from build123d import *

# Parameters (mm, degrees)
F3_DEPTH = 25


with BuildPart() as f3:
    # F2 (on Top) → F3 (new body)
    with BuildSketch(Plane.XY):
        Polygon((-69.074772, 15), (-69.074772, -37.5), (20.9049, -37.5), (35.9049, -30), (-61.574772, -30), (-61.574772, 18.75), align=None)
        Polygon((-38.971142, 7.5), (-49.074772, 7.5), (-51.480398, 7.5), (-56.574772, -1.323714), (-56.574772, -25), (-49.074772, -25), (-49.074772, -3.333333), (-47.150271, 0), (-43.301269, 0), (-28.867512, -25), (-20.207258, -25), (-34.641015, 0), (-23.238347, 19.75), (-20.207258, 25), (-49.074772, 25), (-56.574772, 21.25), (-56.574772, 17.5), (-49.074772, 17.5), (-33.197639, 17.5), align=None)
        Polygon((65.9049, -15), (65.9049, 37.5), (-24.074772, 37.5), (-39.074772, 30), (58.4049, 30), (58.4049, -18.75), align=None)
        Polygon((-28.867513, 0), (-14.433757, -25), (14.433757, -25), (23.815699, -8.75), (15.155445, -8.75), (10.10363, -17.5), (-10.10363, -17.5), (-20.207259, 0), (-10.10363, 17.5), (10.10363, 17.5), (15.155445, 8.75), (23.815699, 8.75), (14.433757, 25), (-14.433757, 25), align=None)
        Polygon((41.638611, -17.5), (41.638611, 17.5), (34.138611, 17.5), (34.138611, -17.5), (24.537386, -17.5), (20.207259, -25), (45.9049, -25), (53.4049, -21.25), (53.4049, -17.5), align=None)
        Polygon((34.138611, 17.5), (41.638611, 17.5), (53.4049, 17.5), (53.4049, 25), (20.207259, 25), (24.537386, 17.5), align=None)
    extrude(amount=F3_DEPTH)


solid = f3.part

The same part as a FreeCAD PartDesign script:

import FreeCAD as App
import Part
import Sketcher

V = App.Vector
Q = App.Units.Quantity

doc = App.newDocument("Part")
body = doc.addObject("PartDesign::Body", "Body")
body.AllowCompound = True

# Sketch on XY plane
sketch1 = body.newObject("Sketcher::SketchObject", "Sketch")
sketch1.AttachmentSupport = (doc.getObject("XY_Plane"), [""])
sketch1.MapMode = "FlatFace"
sketch1.addGeometry(Part.LineSegment(V(-69.1, 15, 0), V(-69.1, -37.5, 0)), False)
sketch1.addGeometry(Part.LineSegment(V(-69.1, -37.5, 0), V(20.9, -37.5, 0)), False)
sketch1.addGeometry(Part.LineSegment(V(20.9, -37.5, 0), V(35.9, -30, 0)), False)
sketch1.addGeometry(Part.LineSegment(V(35.9, -30, 0), V(-61.6, -30, 0)), False)
sketch1.addGeometry(Part.LineSegment(V(-61.6, -30, 0), V(-61.6, 18.8, 0)), False)
sketch1.addGeometry(Part.LineSegment(V(-61.6, 18.8, 0), V(-69.1, 15, 0)), False)
sketch1.addGeometry(Part.LineSegment(V(-39, 7.5, 0), V(-51.5, 7.5, 0)), False)
sketch1.addGeometry(Part.LineSegment(V(-51.5, 7.5, 0), V(-56.6, -1.3, 0)), False)
sketch1.addGeometry(Part.LineSegment(V(-56.6, -1.3, 0), V(-56.6, -25, 0)), False)
sketch1.addGeometry(Part.LineSegment(V(-56.6, -25, 0), V(-49.1, -25, 0)), False)
sketch1.addGeometry(Part.LineSegment(V(-49.1, -25, 0), V(-49.1, -3.3, 0)), False)
sketch1.addGeometry(Part.LineSegment(V(-49.1, -3.3, 0), V(-47.2, 0, 0)), False)
sketch1.addGeometry(Part.LineSegment(V(-47.2, 0, 0), V(-43.3, 0, 0)), False)
sketch1.addGeometry(Part.LineSegment(V(-43.3, 0, 0), V(-28.9, -25, 0)), False)
sketch1.addGeometry(Part.LineSegment(V(-28.9, -25, 0), V(-20.2, -25, 0)), False)
sketch1.addGeometry(Part.LineSegment(V(-20.2, -25, 0), V(-34.6, 0, 0)), False)
sketch1.addGeometry(Part.LineSegment(V(-34.6, 0, 0), V(-23.2, 19.8, 0)), False)
sketch1.addGeometry(Part.LineSegment(V(-23.2, 19.8, 0), V(-20.2, 25, 0)), False)
sketch1.addGeometry(Part.LineSegment(V(-20.2, 25, 0), V(-49.1, 25, 0)), False)
sketch1.addGeometry(Part.LineSegment(V(-49.1, 25, 0), V(-56.6, 21.2, 0)), False)
sketch1.addGeometry(Part.LineSegment(V(-56.6, 21.2, 0), V(-56.6, 17.5, 0)), False)
sketch1.addGeometry(Part.LineSegment(V(-56.6, 17.5, 0), V(-33.2, 17.5, 0)), False)
sketch1.addGeometry(Part.LineSegment(V(-33.2, 17.5, 0), V(-39, 7.5, 0)), False)
sketch1.addGeometry(Part.LineSegment(V(65.9, -15, 0), V(65.9, 37.5, 0)), False)
sketch1.addGeometry(Part.LineSegment(V(65.9, 37.5, 0), V(-24.1, 37.5, 0)), False)
sketch1.addGeometry(Part.LineSegment(V(-24.1, 37.5, 0), V(-39.1, 30, 0)), False)
sketch1.addGeometry(Part.LineSegment(V(-39.1, 30, 0), V(58.4, 30, 0)), False)
sketch1.addGeometry(Part.LineSegment(V(58.4, 30, 0), V(58.4, -18.8, 0)), False)
sketch1.addGeometry(Part.LineSegment(V(58.4, -18.8, 0), V(65.9, -15, 0)), False)
sketch1.addGeometry(Part.LineSegment(V(-28.9, 0, 0), V(-14.4, -25, 0)), False)
sketch1.addGeometry(Part.LineSegment(V(-14.4, -25, 0), V(14.4, -25, 0)), False)
sketch1.addGeometry(Part.LineSegment(V(14.4, -25, 0), V(23.8, -8.8, 0)), False)
sketch1.addGeometry(Part.LineSegment(V(23.8, -8.8, 0), V(15.2, -8.8, 0)), False)
sketch1.addGeometry(Part.LineSegment(V(15.2, -8.8, 0), V(10.1, -17.5, 0)), False)
sketch1.addGeometry(Part.LineSegment(V(10.1, -17.5, 0), V(-10.1, -17.5, 0)), False)
sketch1.addGeometry(Part.LineSegment(V(-10.1, -17.5, 0), V(-20.2, 0, 0)), False)
sketch1.addGeometry(Part.LineSegment(V(-20.2, 0, 0), V(-10.1, 17.5, 0)), False)
sketch1.addGeometry(Part.LineSegment(V(-10.1, 17.5, 0), V(10.1, 17.5, 0)), False)
sketch1.addGeometry(Part.LineSegment(V(10.1, 17.5, 0), V(15.2, 8.8, 0)), False)
sketch1.addGeometry(Part.LineSegment(V(15.2, 8.8, 0), V(23.8, 8.8, 0)), False)
sketch1.addGeometry(Part.LineSegment(V(23.8, 8.8, 0), V(14.4, 25, 0)), False)
sketch1.addGeometry(Part.LineSegment(V(14.4, 25, 0), V(-14.4, 25, 0)), False)
sketch1.addGeometry(Part.LineSegment(V(-14.4, 25, 0), V(-28.9, 0, 0)), False)
sketch1.addGeometry(Part.LineSegment(V(41.6, -17.5, 0), V(41.6, 17.5, 0)), False)
sketch1.addGeometry(Part.LineSegment(V(41.6, 17.5, 0), V(53.4, 17.5, 0)), False)
sketch1.addGeometry(Part.LineSegment(V(53.4, 17.5, 0), V(53.4, 25, 0)), False)
sketch1.addGeometry(Part.LineSegment(V(53.4, 25, 0), V(20.2, 25, 0)), False)
sketch1.addGeometry(Part.LineSegment(V(20.2, 25, 0), V(24.5, 17.5, 0)), False)
sketch1.addGeometry(Part.LineSegment(V(24.5, 17.5, 0), V(34.1, 17.5, 0)), False)
sketch1.addGeometry(Part.LineSegment(V(34.1, 17.5, 0), V(34.1, -17.5, 0)), False)
sketch1.addGeometry(Part.LineSegment(V(34.1, -17.5, 0), V(24.5, -17.5, 0)), False)
sketch1.addGeometry(Part.LineSegment(V(24.5, -17.5, 0), V(20.2, -25, 0)), False)
sketch1.addGeometry(Part.LineSegment(V(20.2, -25, 0), V(45.9, -25, 0)), False)
sketch1.addGeometry(Part.LineSegment(V(45.9, -25, 0), V(53.4, -21.2, 0)), False)
sketch1.addGeometry(Part.LineSegment(V(53.4, -21.2, 0), V(53.4, -17.5, 0)), False)
sketch1.addGeometry(Part.LineSegment(V(53.4, -17.5, 0), V(41.6, -17.5, 0)), False)
sketch1.addConstraint(Sketcher.Constraint("Coincident", 0, 2, 1, 1))
sketch1.addConstraint(Sketcher.Constraint("Coincident", 1, 2, 2, 1))
sketch1.addConstraint(Sketcher.Constraint("Coincident", 2, 2, 3, 1))
sketch1.addConstraint(Sketcher.Constraint("Coincident", 3, 2, 4, 1))
sketch1.addConstraint(Sketcher.Constraint("Coincident", 4, 2, 5, 1))
sketch1.addConstraint(Sketcher.Constraint("Coincident", 5, 2, 0, 1))
sketch1.addConstraint(Sketcher.Constraint("Coincident", 6, 2, 7, 1))
sketch1.addConstraint(Sketcher.Constraint("Coincident", 7, 2, 8, 1))
sketch1.addConstraint(Sketcher.Constraint("Coincident", 8, 2, 9, 1))
sketch1.addConstraint(Sketcher.Constraint("Coincident", 9, 2, 10, 1))
sketch1.addConstraint(Sketcher.Constraint("Coincident", 10, 2, 11, 1))
sketch1.addConstraint(Sketcher.Constraint("Coincident", 11, 2, 12, 1))
sketch1.addConstraint(Sketcher.Constraint("Coincident", 12, 2, 13, 1))
sketch1.addConstraint(Sketcher.Constraint("Coincident", 13, 2, 14, 1))
sketch1.addConstraint(Sketcher.Constraint("Coincident", 14, 2, 15, 1))
sketch1.addConstraint(Sketcher.Constraint("Coincident", 15, 2, 16, 1))
sketch1.addConstraint(Sketcher.Constraint("Coincident", 16, 2, 17, 1))
sketch1.addConstraint(Sketcher.Constraint("Coincident", 17, 2, 18, 1))
sketch1.addConstraint(Sketcher.Constraint("Coincident", 18, 2, 19, 1))
sketch1.addConstraint(Sketcher.Constraint("Coincident", 19, 2, 20, 1))
sketch1.addConstraint(Sketcher.Constraint("Coincident", 20, 2, 21, 1))
sketch1.addConstraint(Sketcher.Constraint("Coincident", 21, 2, 22, 1))
sketch1.addConstraint(Sketcher.Constraint("Coincident", 22, 2, 6, 1))
sketch1.addConstraint(Sketcher.Constraint("Coincident", 23, 2, 24, 1))
sketch1.addConstraint(Sketcher.Constraint("Coincident", 24, 2, 25, 1))
sketch1.addConstraint(Sketcher.Constraint("Coincident", 25, 2, 26, 1))
sketch1.addConstraint(Sketcher.Constraint("Coincident", 26, 2, 27, 1))
sketch1.addConstraint(Sketcher.Constraint("Coincident", 27, 2, 28, 1))
sketch1.addConstraint(Sketcher.Constraint("Coincident", 28, 2, 23, 1))
sketch1.addConstraint(Sketcher.Constraint("Coincident", 29, 2, 30, 1))
sketch1.addConstraint(Sketcher.Constraint("Coincident", 30, 2, 31, 1))
sketch1.addConstraint(Sketcher.Constraint("Coincident", 31, 2, 32, 1))
sketch1.addConstraint(Sketcher.Constraint("Coincident", 32, 2, 33, 1))
sketch1.addConstraint(Sketcher.Constraint("Coincident", 33, 2, 34, 1))
sketch1.addConstraint(Sketcher.Constraint("Coincident", 34, 2, 35, 1))
sketch1.addConstraint(Sketcher.Constraint("Coincident", 35, 2, 36, 1))
sketch1.addConstraint(Sketcher.Constraint("Coincident", 36, 2, 37, 1))
sketch1.addConstraint(Sketcher.Constraint("Coincident", 37, 2, 38, 1))
sketch1.addConstraint(Sketcher.Constraint("Coincident", 38, 2, 39, 1))
sketch1.addConstraint(Sketcher.Constraint("Coincident", 39, 2, 40, 1))
sketch1.addConstraint(Sketcher.Constraint("Coincident", 40, 2, 41, 1))
sketch1.addConstraint(Sketcher.Constraint("Coincident", 41, 2, 42, 1))
sketch1.addConstraint(Sketcher.Constraint("Coincident", 42, 2, 29, 1))
sketch1.addConstraint(Sketcher.Constraint("Coincident", 43, 2, 44, 1))
sketch1.addConstraint(Sketcher.Constraint("Coincident", 44, 2, 45, 1))
sketch1.addConstraint(Sketcher.Constraint("Coincident", 45, 2, 46, 1))
sketch1.addConstraint(Sketcher.Constraint("Coincident", 46, 2, 47, 1))
sketch1.addConstraint(Sketcher.Constraint("Coincident", 47, 2, 48, 1))
sketch1.addConstraint(Sketcher.Constraint("Coincident", 48, 2, 49, 1))
sketch1.addConstraint(Sketcher.Constraint("Coincident", 49, 2, 50, 1))
sketch1.addConstraint(Sketcher.Constraint("Coincident", 50, 2, 51, 1))
sketch1.addConstraint(Sketcher.Constraint("Coincident", 51, 2, 52, 1))
sketch1.addConstraint(Sketcher.Constraint("Coincident", 52, 2, 53, 1))
sketch1.addConstraint(Sketcher.Constraint("Coincident", 53, 2, 54, 1))
sketch1.addConstraint(Sketcher.Constraint("Coincident", 54, 2, 55, 1))
sketch1.addConstraint(Sketcher.Constraint("Coincident", 55, 2, 43, 1))
sketch1.addConstraint(Sketcher.Constraint("Vertical", 0))
sketch1.addConstraint(Sketcher.Constraint("Horizontal", 1))
sketch1.addConstraint(Sketcher.Constraint("Horizontal", 3))
sketch1.addConstraint(Sketcher.Constraint("Vertical", 4))
sketch1.addConstraint(Sketcher.Constraint("Horizontal", 6))
sketch1.addConstraint(Sketcher.Constraint("Vertical", 8))
sketch1.addConstraint(Sketcher.Constraint("Horizontal", 9))
sketch1.addConstraint(Sketcher.Constraint("Vertical", 10))
sketch1.addConstraint(Sketcher.Constraint("Horizontal", 12))
sketch1.addConstraint(Sketcher.Constraint("Horizontal", 14))
sketch1.addConstraint(Sketcher.Constraint("Horizontal", 18))
sketch1.addConstraint(Sketcher.Constraint("Vertical", 20))
sketch1.addConstraint(Sketcher.Constraint("Horizontal", 21))
sketch1.addConstraint(Sketcher.Constraint("Vertical", 23))
sketch1.addConstraint(Sketcher.Constraint("Horizontal", 24))
sketch1.addConstraint(Sketcher.Constraint("Horizontal", 26))
sketch1.addConstraint(Sketcher.Constraint("Vertical", 27))
sketch1.addConstraint(Sketcher.Constraint("Horizontal", 30))
sketch1.addConstraint(Sketcher.Constraint("Horizontal", 32))
sketch1.addConstraint(Sketcher.Constraint("Horizontal", 34))
sketch1.addConstraint(Sketcher.Constraint("Horizontal", 37))
sketch1.addConstraint(Sketcher.Constraint("Horizontal", 39))
sketch1.addConstraint(Sketcher.Constraint("Horizontal", 41))
sketch1.addConstraint(Sketcher.Constraint("Vertical", 43))
sketch1.addConstraint(Sketcher.Constraint("Horizontal", 44))
sketch1.addConstraint(Sketcher.Constraint("Vertical", 45))
sketch1.addConstraint(Sketcher.Constraint("Horizontal", 46))
sketch1.addConstraint(Sketcher.Constraint("Horizontal", 48))
sketch1.addConstraint(Sketcher.Constraint("Vertical", 49))
sketch1.addConstraint(Sketcher.Constraint("Horizontal", 50))
sketch1.addConstraint(Sketcher.Constraint("Horizontal", 52))
sketch1.addConstraint(Sketcher.Constraint("Vertical", 54))
sketch1.addConstraint(Sketcher.Constraint("Horizontal", 55))
sketch1.addConstraint(Sketcher.Constraint("Symmetric", 33, 2, 36, 2, -1, 1))
sketch1.addConstraint(Sketcher.Constraint("Symmetric", 29, 2, 40, 2, -1, 1))
sketch1.addConstraint(Sketcher.Constraint("Symmetric", 14, 2, 46, 2, -1, 1))
sketch1.addConstraint(Sketcher.Constraint("Symmetric", 17, 2, 51, 2, -1, 1))
sketch1.addConstraint(Sketcher.Constraint("Symmetric", 17, 2, 46, 2, -2))
sketch1.addConstraint(Sketcher.Constraint("Symmetric", 9, 2, 18, 2, -1))
sketch1.addConstraint(Sketcher.Constraint("Symmetric", 32, 2, 38, 2, -1))
sketch1.addConstraint(Sketcher.Constraint("Symmetric", 47, 2, 50, 2, -1))
sketch1.addConstraint(Sketcher.Constraint("Symmetric", 44, 2, 54, 2, -1))
sketch1.addConstraint(Sketcher.Constraint("PointOnObject", 11, 2, -1))
sketch1.addConstraint(Sketcher.Constraint("PointOnObject", 15, 2, -1))
sketch1.addConstraint(Sketcher.Constraint("PointOnObject", 35, 2, -1))
sketch1.addConstraint(Sketcher.Constraint("PointOnObject", 42, 2, -1))
sketch1.addConstraint(Sketcher.Constraint("Parallel", 2, 5))
sketch1.addConstraint(Sketcher.Constraint("Parallel", 7, 11))
sketch1.addConstraint(Sketcher.Constraint("Parallel", 13, 15))
sketch1.addConstraint(Sketcher.Constraint("Parallel", 11, 16))
sketch1.addConstraint(Sketcher.Constraint("Parallel", 16, 17))
sketch1.addConstraint(Sketcher.Constraint("Parallel", 5, 19))
sketch1.addConstraint(Sketcher.Constraint("Parallel", 17, 22))
sketch1.addConstraint(Sketcher.Constraint("Parallel", 19, 25))
sketch1.addConstraint(Sketcher.Constraint("Parallel", 25, 28))
sketch1.addConstraint(Sketcher.Constraint("Parallel", 15, 29))
sketch1.addConstraint(Sketcher.Constraint("Parallel", 22, 31))
sketch1.addConstraint(Sketcher.Constraint("Parallel", 31, 33))
sketch1.addConstraint(Sketcher.Constraint("Parallel", 29, 35))
sketch1.addConstraint(Sketcher.Constraint("Parallel", 33, 36))
sketch1.addConstraint(Sketcher.Constraint("Parallel", 35, 38))
sketch1.addConstraint(Sketcher.Constraint("Parallel", 38, 40))
sketch1.addConstraint(Sketcher.Constraint("Parallel", 36, 42))
sketch1.addConstraint(Sketcher.Constraint("Parallel", 40, 47))
sketch1.addConstraint(Sketcher.Constraint("Parallel", 28, 53))
sketch1.addConstraint(Sketcher.Constraint("Horizontal", 14, 2, 29, 2))
sketch1.addConstraint(Sketcher.Constraint("Horizontal", 21, 2, 36, 2))
sketch1.addConstraint(Sketcher.Constraint("Horizontal", 37, 2, 43, 2))
sketch1.addConstraint(Sketcher.Constraint("Horizontal", 44, 2, 47, 2))
sketch1.addConstraint(Sketcher.Constraint("Vertical", 8, 2, 19, 2))
sketch1.addConstraint(Sketcher.Constraint("Vertical", 17, 2, 35, 2))
sketch1.addConstraint(Sketcher.Constraint("Vertical", 31, 2, 39, 2))
sketch1.addConstraint(Sketcher.Constraint("Vertical", 13, 2, 42, 2))
sketch1.addConstraint(Sketcher.Constraint("Equal", 1, 24))
sketch1.addConstraint(Sketcher.Constraint("Equal", 3, 26))
sketch1.addConstraint(Sketcher.Constraint("Equal", 18, 30))
sketch1.addConstraint(Sketcher.Constraint("Equal", 0, 23))
sketch1.addConstraint(Sketcher.Constraint("Equal", 9, 45))
sketch1.addConstraint(Sketcher.Constraint("Equal", 20, 54))
sketch1.addConstraint(Sketcher.Constraint("Equal", 5, 19))
sketch1.addConstraint(Sketcher.Constraint("Equal", 2, 25))
sketch1.addConstraint(Sketcher.Constraint("DistanceY", 43, 1, 43, 2, 35.0))
sketch1.addConstraint(Sketcher.Constraint("Angle", 7, Q("-120.000002 deg")))
sketch1.addConstraint(Sketcher.Constraint("DistanceX", 9, 1, 9, 2, 7.5))
sketch1.addConstraint(Sketcher.Constraint("DistanceY", 0, 2, 0, 1, 52.5))
sketch1.addConstraint(Sketcher.Constraint("DistanceY", 2, 2, -1, 1, 30.0))
sketch1.addConstraint(Sketcher.Constraint("DistanceY", -1, 1, 5, 2, 15.0))
sketch1.addConstraint(Sketcher.Constraint("DistanceY", -1, 1, 25, 2, 30.0))
sketch1.addConstraint(Sketcher.Constraint("DistanceX", 1, 2, 2, 2, 15.0))
sketch1.addConstraint(Sketcher.Constraint("DistanceY", 0, 2, 6, 2, 45.0))
sketch1.addConstraint(Sketcher.Constraint("DistanceX", 4, 2, 7, 2, 5.0))
sketch1.addConstraint(Sketcher.Constraint("DistanceX", 2, 2, 23, 2, 30.0))
sketch1.addConstraint(Sketcher.Constraint("DistanceY", 27, 2, 31, 2, 10.0))
sketch1.addConstraint(Sketcher.Constraint("DistanceX", 44, 2, 26, 2, 5.0))
sketch1.addConstraint(Sketcher.Constraint("DistanceX", 48, 2, 43, 2, 7.5))
sketch1.addConstraint(Sketcher.Constraint("DistanceX", 12, 1, 12, 2, 3.849002))
sketch1.addConstraint(Sketcher.Constraint("DistanceY", -1, 1, 16, 2, 19.75))
sketch1.addConstraint(Sketcher.Constraint("Distance", 11, 3.849002))
sketch1.addConstraint(Sketcher.Constraint("DistanceX", 1, 1, 1, 2, 89.979672))
sketch1.addConstraint(Sketcher.Constraint("DistanceX", 34, 2, 34, 1, 20.20726))
sketch1.addConstraint(Sketcher.Constraint("DistanceX", 44, 1, 44, 2, 11.766289))
sketch1.addConstraint(Sketcher.Constraint("DistanceX", 6, 2, 1, 2, 72.385298))
sketch1.addConstraint(Sketcher.Constraint("DistanceX", 6, 2, 6, 1, 12.509256))
pad1 = body.newObject("PartDesign::Pad", "Pad")
pad1.Profile = sketch1
pad1.Length = 25

doc.recompute()
